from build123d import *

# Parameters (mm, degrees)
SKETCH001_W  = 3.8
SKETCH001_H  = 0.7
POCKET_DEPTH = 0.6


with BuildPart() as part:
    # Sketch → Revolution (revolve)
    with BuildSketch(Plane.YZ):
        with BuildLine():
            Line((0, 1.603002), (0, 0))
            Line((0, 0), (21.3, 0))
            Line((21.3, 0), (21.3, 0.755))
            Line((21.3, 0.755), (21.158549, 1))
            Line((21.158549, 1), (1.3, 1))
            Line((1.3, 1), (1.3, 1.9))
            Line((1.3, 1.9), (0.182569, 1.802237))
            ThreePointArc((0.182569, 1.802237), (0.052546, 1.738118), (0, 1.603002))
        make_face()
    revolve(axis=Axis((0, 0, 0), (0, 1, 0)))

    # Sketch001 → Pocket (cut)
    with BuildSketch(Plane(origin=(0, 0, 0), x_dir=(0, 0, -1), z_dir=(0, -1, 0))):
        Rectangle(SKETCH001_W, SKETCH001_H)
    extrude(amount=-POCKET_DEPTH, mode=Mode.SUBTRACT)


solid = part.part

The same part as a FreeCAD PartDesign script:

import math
import FreeCAD as App
import Part
import Sketcher
from FreeCAD import Vector

doc = App.newDocument("Part")
body = doc.addObject("PartDesign::Body", "Body")

# Sketch on YZ plane
sketch1 = body.newObject("Sketcher::SketchObject", "Sketch")
sketch1.AttachmentSupport = (doc.getObject("YZ_Plane"), [""])
sketch1.MapMode = "FlatFace"
sketch1.addGeometry(Part.LineSegment(Vector(0, 1.6, 0), Vector(0, 0, 0)), False)
sketch1.addGeometry(Part.LineSegment(Vector(0, 0, 0), Vector(21.3, 0, 0)), False)
sketch1.addGeometry(Part.LineSegment(Vector(21.3, 0, 0), Vector(21.3, 0.76, 0)), False)
sketch1.addGeometry(Part.LineSegment(Vector(21.3, 0.76, 0), Vector(21.16, 1, 0)), False)
sketch1.addGeometry(Part.LineSegment(Vector(21.16, 1, 0), Vector(1.3, 1, 0)), False)
sketch1.addGeometry(Part.LineSegment(Vector(1.3, 1, 0), Vector(1.3, 1.9, 0)), False)
sketch1.addGeometry(Part.LineSegment(Vector(1.3, 1.9, 0), Vector(0.18, 1.8, 0)), False)
sketch1.addGeometry(Part.ArcOfCircle(Part.Circle(Vector(0.2, 1.6, 0), Vector(0, 0, 1), 0.2), math.radians(95), math.radians(180)), False)
sketch1.addConstraint(Sketcher.Constraint("Coincident", 0, 2, 1, 1))
sketch1.addConstraint(Sketcher.Constraint("Coincident", 1, 2, 2, 1))
sketch1.addConstraint(Sketcher.Constraint("Coincident", 2, 2, 3, 1))
sketch1.addConstraint(Sketcher.Constraint("Coincident", 3, 2, 4, 1))
sketch1.addConstraint(Sketcher.Constraint("Coincident", 4, 2, 5, 1))
sketch1.addConstraint(Sketcher.Constraint("Coincident", 5, 2, 6, 1))
sketch1.addConstraint(Sketcher.Constraint("Coincident", 6, 2, 7, 1))
sketch1.addConstraint(Sketcher.Constraint("Coincident", 7, 2, 0, 1))
sketch1.addConstraint(Sketcher.Constraint("Vertical", 0))
sketch1.addConstraint(Sketcher.Constraint("Horizontal", 1))
sketch1.addConstraint(Sketcher.Constraint("Vertical", 2))
sketch1.addConstraint(Sketcher.Constraint("Horizontal", 4))
sketch1.addConstraint(Sketcher.Constraint("Vertical", 5))
sketch1.addConstraint(Sketcher.Constraint("Coincident", 0, 2, -1, 1))
sketch1.addConstraint(Sketcher.Constraint("Radius", 7, 0.199999))
sketch1.addConstraint(Sketcher.Constraint("DistanceX", 1, 1, 1, 2, 21.3))
sketch1.addConstraint(Sketcher.Constraint("DistanceY", 5, 1, 5, 2, 0.9))
sketch1.addConstraint(Sketcher.Constraint("DistanceY", -1, 1, 3, 2, 1.0))
sketch1.addConstraint(Sketcher.Constraint("DistanceX", 4, 2, 2, 2, 20.0))
sketch1.addConstraint(Sketcher.Constraint("DistanceY", 2, 1, 2, 2, 0.755))
sketch1.addConstraint(Sketcher.Constraint("DistanceY", -1, 1, 7, 3, 1.602999))
sketch1.addConstraint(Sketcher.Constraint("DistanceY", -1, 1, 7, 2, 1.603002))
sketch1.addConstraint(Sketcher.Constraint("Distance", 3, 0.282902))
sketch1.addConstraint(Sketcher.Constraint("Distance", 6, 1.121699))
revolution = body.newObject("PartDesign::Revolution", "Revolution")
revolution.Profile = sketch1
revolution.ReferenceAxis = (sketch1, ["H_Axis"])
revolution.Angle = 360

# Sketch on XZ plane
sketch2 = body.newObject("Sketcher::SketchObject", "Sketch001")
sketch2.AttachmentSupport = (doc.getObject("XZ_Plane"), [""])
sketch2.MapMode = "FlatFace"
sketch2.addGeometry(Part.LineSegment(Vector(0.3, 1.9, 0), Vector(-0.3, 1.9, 0)), False)
sketch2.addGeometry(Part.LineSegment(Vector(-0.3, 1.9, 0), Vector(-0.3, -1.9, 0)), False)
sketch2.addGeometry(Part.LineSegment(Vector(-0.3, -1.9, 0), Vector(0.3, -1.9, 0)), False)
sketch2.addGeometry(Part.LineSegment(Vector(0.3, -1.9, 0), Vector(0.3, 1.9, 0)), False)
sketch2.addConstraint(Sketcher.Constraint("Coincident", 0, 2, 1, 1))
sketch2.addConstraint(Sketcher.Constraint("Coincident", 1, 2, 2, 1))
sketch2.addConstraint(Sketcher.Constraint("Coincident", 2, 2, 3, 1))
sketch2.addConstraint(Sketcher.Constraint("Coincident", 3, 2, 0, 1))
sketch2.addConstraint(Sketcher.Constraint("Horizontal", 0))
sketch2.addConstraint(Sketcher.Constraint("Vertical", 1))
sketch2.addConstraint(Sketcher.Constraint("Horizontal", 2))
sketch2.addConstraint(Sketcher.Constraint("Vertical", 3))
sketch2.addConstraint(Sketcher.Constraint("Symmetric", 0, 2, 2, 2, -1, 1))
sketch2.addConstraint(Sketcher.Constraint("DistanceX", 0, 2, 0, 1, 0.7))
sketch2.addConstraint(Sketcher.Constraint("DistanceY", 1, 2, 1, 1, 3.8))
pocket1 = body.newObject("PartDesign::Pocket", "Pocket")
pocket1.Profile = sketch2
pocket1.Length = 0.6

doc.recompute()
